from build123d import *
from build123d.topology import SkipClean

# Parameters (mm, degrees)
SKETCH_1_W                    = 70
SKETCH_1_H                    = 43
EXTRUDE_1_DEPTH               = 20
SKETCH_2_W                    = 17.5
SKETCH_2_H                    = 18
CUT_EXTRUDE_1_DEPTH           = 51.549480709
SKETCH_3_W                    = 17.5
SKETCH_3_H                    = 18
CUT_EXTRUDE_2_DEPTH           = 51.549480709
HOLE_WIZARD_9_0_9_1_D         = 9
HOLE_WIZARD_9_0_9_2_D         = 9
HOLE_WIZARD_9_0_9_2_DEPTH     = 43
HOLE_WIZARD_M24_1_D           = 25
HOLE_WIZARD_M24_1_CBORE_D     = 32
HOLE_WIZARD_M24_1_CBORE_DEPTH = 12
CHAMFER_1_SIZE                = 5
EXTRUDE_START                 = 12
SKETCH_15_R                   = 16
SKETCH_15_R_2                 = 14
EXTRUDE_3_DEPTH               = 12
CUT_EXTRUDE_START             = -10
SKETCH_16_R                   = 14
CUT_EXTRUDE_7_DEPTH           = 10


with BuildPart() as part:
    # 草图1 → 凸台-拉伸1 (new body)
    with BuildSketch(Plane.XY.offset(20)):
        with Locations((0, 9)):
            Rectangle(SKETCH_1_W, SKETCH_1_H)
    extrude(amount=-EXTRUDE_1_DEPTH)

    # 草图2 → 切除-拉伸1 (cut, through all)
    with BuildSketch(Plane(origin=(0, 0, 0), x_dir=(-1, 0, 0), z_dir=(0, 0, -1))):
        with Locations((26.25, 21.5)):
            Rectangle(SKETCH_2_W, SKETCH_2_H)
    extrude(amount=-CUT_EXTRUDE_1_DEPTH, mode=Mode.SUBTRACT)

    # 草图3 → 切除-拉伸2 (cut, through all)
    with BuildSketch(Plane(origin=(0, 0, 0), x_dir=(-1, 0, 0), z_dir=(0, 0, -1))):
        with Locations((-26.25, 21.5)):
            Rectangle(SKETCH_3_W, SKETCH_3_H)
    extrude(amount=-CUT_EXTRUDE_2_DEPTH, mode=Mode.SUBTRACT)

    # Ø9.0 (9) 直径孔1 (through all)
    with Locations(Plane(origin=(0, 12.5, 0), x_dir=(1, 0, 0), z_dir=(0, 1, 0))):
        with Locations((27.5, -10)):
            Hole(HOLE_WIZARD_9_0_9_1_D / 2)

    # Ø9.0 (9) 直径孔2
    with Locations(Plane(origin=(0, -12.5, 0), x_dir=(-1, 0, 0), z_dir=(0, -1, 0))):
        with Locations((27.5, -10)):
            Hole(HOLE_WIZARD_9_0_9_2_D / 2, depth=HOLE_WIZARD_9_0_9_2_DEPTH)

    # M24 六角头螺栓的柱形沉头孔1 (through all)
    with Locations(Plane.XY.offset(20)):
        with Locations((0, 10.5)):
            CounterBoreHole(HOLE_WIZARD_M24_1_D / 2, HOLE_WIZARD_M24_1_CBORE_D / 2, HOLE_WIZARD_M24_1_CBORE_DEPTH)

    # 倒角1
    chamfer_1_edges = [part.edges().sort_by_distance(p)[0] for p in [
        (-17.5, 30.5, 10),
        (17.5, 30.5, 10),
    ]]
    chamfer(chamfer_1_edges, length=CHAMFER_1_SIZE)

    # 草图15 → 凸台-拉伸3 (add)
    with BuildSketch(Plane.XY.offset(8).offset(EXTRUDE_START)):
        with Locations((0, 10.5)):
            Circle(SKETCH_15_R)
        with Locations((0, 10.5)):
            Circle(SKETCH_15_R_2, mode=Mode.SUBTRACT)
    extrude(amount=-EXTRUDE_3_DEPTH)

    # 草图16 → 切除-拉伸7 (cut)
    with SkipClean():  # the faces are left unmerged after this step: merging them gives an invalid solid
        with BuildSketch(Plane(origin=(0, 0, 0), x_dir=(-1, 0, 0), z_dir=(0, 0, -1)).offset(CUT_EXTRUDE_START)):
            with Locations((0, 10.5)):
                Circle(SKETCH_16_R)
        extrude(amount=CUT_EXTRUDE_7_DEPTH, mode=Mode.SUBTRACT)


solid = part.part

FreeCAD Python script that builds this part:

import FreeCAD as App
import Part
import Sketcher

V = App.Vector
Q = App.Units.Quantity


def edges_at(feature, points):
    """Names of the edges that pass closest to the given points."""
    edges = feature.Shape.Edges
    near = lambda p: min(range(len(edges)), key=lambda i: edges[i].distToShape(Part.Vertex(*p))[0])
    return sorted({f"Edge{near(p) + 1}" for p in points})


def add_polygon(sketch, points):
    """Adds a closed chain of lines whose ends are joined by coincident constraints."""
    first, n = sketch.GeometryCount, len(points)
    for a, b in zip(points, points[1:] + points[:1]):
        sketch.addGeometry(Part.LineSegment(App.Vector(*a, 0), App.Vector(*b, 0)), False)
    for i in range(n):
        sketch.addConstraint(Sketcher.Constraint("Coincident", first + i, 2, first + (i + 1) % n, 1))

doc = App.newDocument("Part")
body = doc.addObject("PartDesign::Body", "Body")

sketch1 = body.newObject("Sketcher::SketchObject", "Sketch")
sketch1.AttachmentSupport = (doc.getObject("XY_Plane"), [""])
sketch1.MapMode = "FlatFace"
sketch1.AttachmentOffset = App.Placement(V(0, 0, 20), App.Rotation())
add_polygon(sketch1, [(-35, 30.5), (-35, -12.5), (35, -12.5), (35, 30.5)])
sketch1.addConstraint(Sketcher.Constraint("Vertical", 0))
sketch1.addConstraint(Sketcher.Constraint("Horizontal", 1))
sketch1.addConstraint(Sketcher.Constraint("Vertical", 2))
sketch1.addConstraint(Sketcher.Constraint("Horizontal", 3))
sketch1.addConstraint(Sketcher.Constraint("DistanceX", 1, 1, 1, 2, Q("70 mm")))
sketch1.addConstraint(Sketcher.Constraint("DistanceY", 0, 2, 0, 1, Q("43 mm")))
sketch1.addConstraint(Sketcher.Constraint("DistanceX", 0, 2, -1, 1, Q("35 mm")))
sketch1.addConstraint(Sketcher.Constraint("DistanceY", 0, 2, -1, 1, Q("12.5 mm")))
pad1 = body.newObject("PartDesign::Pad", "Pad")
pad1.Profile = sketch1
pad1.Length = 20
pad1.Reversed = True

sketch2 = body.newObject("Sketcher::SketchObject", "Sketch001")
sketch2.AttachmentSupport = (doc.getObject("XY_Plane"), [""])
sketch2.MapMode = "FlatFace"
add_polygon(sketch2, [(-17.5, 30.5), (-17.5, 12.5), (-35, 12.5), (-35, 30.5)])
sketch2.addConstraint(Sketcher.Constraint("Vertical", 0))
sketch2.addConstraint(Sketcher.Constraint("Horizontal", 1))
sketch2.addConstraint(Sketcher.Constraint("Vertical", 2))
sketch2.addConstraint(Sketcher.Constraint("Horizontal", 3))
sketch2.addConstraint(Sketcher.Constraint("DistanceY", 0, 2, 0, 1, Q("18 mm")))
sketch2.addConstraint(Sketcher.Constraint("DistanceX", 1, 2, 1, 1, Q("17.5 mm")))
sketch2.addConstraint(Sketcher.Constraint("DistanceX", 1, 2, -1, 1, Q("35 mm")))
sketch2.addConstraint(Sketcher.Constraint("DistanceY", -1, 1, 0, 2, Q("12.5 mm")))
pocket1 = body.newObject("PartDesign::Pocket", "Pocket")
pocket1.Profile = sketch2
pocket1.Type = "ThroughAll"
pocket1.Reversed = True

sketch3 = body.newObject("Sketcher::SketchObject", "Sketch002")
sketch3.AttachmentSupport = (doc.getObject("XY_Plane"), [""])
sketch3.MapMode = "FlatFace"
add_polygon(sketch3, [(35, 30.5), (35, 12.5), (17.5, 12.5), (17.5, 30.5)])
sketch3.addConstraint(Sketcher.Constraint("Vertical", 0))
sketch3.addConstraint(Sketcher.Constraint("Horizontal", 1))
sketch3.addConstraint(Sketcher.Constraint("Vertical", 2))
sketch3.addConstraint(Sketcher.Constraint("Horizontal", 3))
sketch3.addConstraint(Sketcher.Constraint("DistanceY", 0, 2, 0, 1, Q("18 mm")))
sketch3.addConstraint(Sketcher.Constraint("DistanceX", 1, 2, 1, 1, Q("17.5 mm")))
sketch3.addConstraint(Sketcher.Constraint("DistanceX", -1, 1, 0, 2, Q("35 mm")))
sketch3.addConstraint(Sketcher.Constraint("DistanceY", -1, 1, 0, 2, Q("12.5 mm")))
pocket2 = body.newObject("PartDesign::Pocket", "Pocket001")
pocket2.Profile = sketch3
pocket2.Type = "ThroughAll"
pocket2.Reversed = True

sketch4 = body.newObject("Sketcher::SketchObject", "Sketch003")
sketch4.AttachmentSupport = (doc.getObject("XZ_Plane"), [""])
sketch4.MapMode = "FlatFace"
sketch4.AttachmentOffset = App.Placement(V(0, 0, -12.5), App.Rotation())
sketch4.addGeometry(Part.Circle(V(27.5, 10, 0), V(0, 0, 1), 4.5), False)
sketch4.addConstraint(Sketcher.Constraint("Diameter", 0, Q("9 mm")))
sketch4.addConstraint(Sketcher.Constraint("DistanceY", -1, 1, 0, 3, Q("10 mm")))
sketch4.addConstraint(Sketcher.Constraint("DistanceX", -1, 1, 0, 3, Q("27.5 mm")))
doc.recompute()
hole = body.newObject("PartDesign::Hole", "Hole")
hole.Profile = sketch4
hole.ThreadType = "None"
hole.Diameter = 9
hole.DepthType = "ThroughAll"
hole.Reversed = True

sketch5 = body.newObject("Sketcher::SketchObject", "Sketch004")
sketch5.AttachmentSupport = (doc.getObject("XZ_Plane"), [""])
sketch5.MapMode = "FlatFace"
sketch5.AttachmentOffset = App.Placement(V(0, 0, 12.5), App.Rotation())
sketch5.addGeometry(Part.Circle(V(-27.5, 10, 0), V(0, 0, 1), 4.5), False)
sketch5.addConstraint(Sketcher.Constraint("Diameter", 0, Q("9 mm")))
sketch5.addConstraint(Sketcher.Constraint("DistanceY", -1, 1, 0, 3, Q("10 mm")))
sketch5.addConstraint(Sketcher.Constraint("DistanceX", 0, 3, -1, 1, Q("27.5 mm")))
doc.recompute()
hole2 = body.newObject("PartDesign::Hole", "Hole001")
hole2.Profile = sketch5
hole2.ThreadType = "None"
hole2.Diameter = 9
hole2.DepthType = "Dimension"
hole2.Depth = 43
hole2.DrillPoint = "Flat"

sketch6 = body.newObject("Sketcher::SketchObject", "Sketch005")
sketch6.AttachmentSupport = (doc.getObject("XY_Plane"), [""])
sketch6.MapMode = "FlatFace"
sketch6.AttachmentOffset = App.Placement(V(0, 0, 20), App.Rotation())
sketch6.addGeometry(Part.Circle(V(0, 10.5, 0), V(0, 0, 1), 12.5), False)
sketch6.addConstraint(Sketcher.Constraint("PointOnObject", 0, 3, -2))
sketch6.addConstraint(Sketcher.Constraint("Diameter", 0, Q("25 mm")))
sketch6.addConstraint(Sketcher.Constraint("DistanceY", -1, 1, 0, 3, Q("10.5 mm")))
doc.recompute()
hole3 = body.newObject("PartDesign::Hole", "Hole002")
hole3.Profile = sketch6
hole3.ThreadType = "None"
hole3.Diameter = 25
hole3.DepthType = "ThroughAll"
hole3.HoleCutType = "Counterbore"
hole3.HoleCutDiameter = 32
hole3.HoleCutDepth = 12
doc.recompute()

chamfer = body.newObject("PartDesign::Chamfer", "Chamfer")
chamfer.Base = (hole3, edges_at(hole3, [(-17.5, 30.5, 10), (17.5, 30.5, 10)]))
chamfer.Size = 5

sketch7 = body.newObject("Sketcher::SketchObject", "Sketch006")
sketch7.AttachmentSupport = (doc.getObject("XY_Plane"), [""])
sketch7.MapMode = "FlatFace"
sketch7.AttachmentOffset = App.Placement(V(0, 0, 20), App.Rotation())
sketch7.addGeometry(Part.Circle(V(0, 10.5, 0), V(0, 0, 1), 16), False)
sketch7.addGeometry(Part.Circle(V(0, 10.5, 0), V(0, 0, 1), 14), False)
sketch7.addConstraint(Sketcher.Constraint("Coincident", 1, 3, 0, 3))
sketch7.addConstraint(Sketcher.Constraint("PointOnObject", 0, 3, -2))
sketch7.addConstraint(Sketcher.Constraint("Diameter", 0, Q("32 mm")))
sketch7.addConstraint(Sketcher.Constraint("Diameter", 1, Q("28 mm")))
sketch7.addConstraint(Sketcher.Constraint("DistanceY", -1, 1, 0, 3, Q("10.5 mm")))
pad2 = body.newObject("PartDesign::Pad", "Pad001")
pad2.Profile = sketch7
pad2.Length = 12
pad2.Reversed = True

sketch8 = body.newObject("Sketcher::SketchObject", "Sketch007")
sketch8.AttachmentSupport = (doc.getObject("XY_Plane"), [""])
sketch8.MapMode = "FlatFace"
sketch8.AttachmentOffset = App.Placement(V(0, 0, 10), App.Rotation())
sketch8.addGeometry(Part.Circle(V(0, 10.5, 0), V(0, 0, 1), 14), False)
sketch8.addConstraint(Sketcher.Constraint("PointOnObject", 0, 3, -2))
sketch8.addConstraint(Sketcher.Constraint("Diameter", 0, Q("28 mm")))
sketch8.addConstraint(Sketcher.Constraint("DistanceY", -1, 1, 0, 3, Q("10.5 mm")))
pocket3 = body.newObject("PartDesign::Pocket", "Pocket002")
pocket3.Profile = sketch8
pocket3.Length = 10

doc.recompute()
